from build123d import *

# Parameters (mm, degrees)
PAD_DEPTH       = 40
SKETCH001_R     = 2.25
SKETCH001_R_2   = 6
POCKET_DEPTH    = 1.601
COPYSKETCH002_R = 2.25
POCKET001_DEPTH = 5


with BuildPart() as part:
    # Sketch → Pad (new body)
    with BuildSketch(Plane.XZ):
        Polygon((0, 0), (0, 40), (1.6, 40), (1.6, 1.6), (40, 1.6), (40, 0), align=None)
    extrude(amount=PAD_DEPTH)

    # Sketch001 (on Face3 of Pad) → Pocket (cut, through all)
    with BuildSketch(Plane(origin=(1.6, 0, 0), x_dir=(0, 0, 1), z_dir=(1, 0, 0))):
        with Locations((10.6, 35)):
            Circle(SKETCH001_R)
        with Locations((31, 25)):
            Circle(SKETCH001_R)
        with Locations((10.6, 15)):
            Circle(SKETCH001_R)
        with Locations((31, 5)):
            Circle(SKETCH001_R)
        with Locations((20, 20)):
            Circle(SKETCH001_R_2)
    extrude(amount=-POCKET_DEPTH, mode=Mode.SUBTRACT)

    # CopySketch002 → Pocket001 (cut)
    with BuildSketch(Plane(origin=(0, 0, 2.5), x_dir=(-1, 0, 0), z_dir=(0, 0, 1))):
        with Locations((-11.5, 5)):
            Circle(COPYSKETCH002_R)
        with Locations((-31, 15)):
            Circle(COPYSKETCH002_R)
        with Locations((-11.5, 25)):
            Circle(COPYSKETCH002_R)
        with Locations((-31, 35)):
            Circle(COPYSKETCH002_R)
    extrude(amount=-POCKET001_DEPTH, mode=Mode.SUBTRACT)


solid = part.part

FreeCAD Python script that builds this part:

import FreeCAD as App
import Part
import Sketcher


def add_polygon(sketch, points):
    """Adds a closed chain of lines whose ends are joined by coincident constraints."""
    first, n = sketch.GeometryCount, len(points)
    for a, b in zip(points, points[1:] + points[:1]):
        sketch.addGeometry(Part.LineSegment(App.Vector(*a, 0), App.Vector(*b, 0)), False)
    for i in range(n):
        sketch.addConstraint(Sketcher.Constraint("Coincident", first + i, 2, first + (i + 1) % n, 1))

doc = App.newDocument("Part")
body = doc.addObject("PartDesign::Body", "Body")

# Sketch on XZ plane
sketch1 = body.newObject("Sketcher::SketchObject", "Sketch")
sketch1.AttachmentSupport = (doc.getObject("XZ_Plane"), [""])
sketch1.MapMode = "FlatFace"
add_polygon(sketch1, [(0, 40), (0, 0), (40, 0), (40, 1.6), (1.6, 1.6), (1.6, 40)])  # lines 0-5
sketch1.addConstraint([
    Sketcher.Constraint("Vertical", 0),
    Sketcher.Constraint("Horizontal", 1),
    Sketcher.Constraint("Vertical", 2),
    Sketcher.Constraint("Horizontal", 3),
    Sketcher.Constraint("Vertical", 4),
    Sketcher.Constraint("Horizontal", 5),
    Sketcher.Constraint("Coincident", 0, 2, -1, 1),
    Sketcher.Constraint("Equal", 1, 0),
    Sketcher.Constraint("Equal", 5, 2),
    Sketcher.Constraint("DistanceX", 1, 1, 1, 2, 40.0),
    Sketcher.Constraint("DistanceX", 3, 2, 3, 1, 38.4),
])
pad1 = body.newObject("PartDesign::Pad", "Pad")
pad1.Profile = sketch1
pad1.Length = 40

# Sketch on YZ plane
sketch2 = body.newObject("Sketcher::SketchObject", "Sketch001")
sketch2.AttachmentSupport = (doc.getObject("YZ_Plane"), [""])
sketch2.MapMode = "FlatFace"
sketch2.AttachmentOffset = App.Placement(App.Vector(0, 0, 1.6), App.Rotation())
sketch2.addGeometry([
    Part.Circle(App.Vector(-35, 10.6, 0), App.Vector(0, 0, 1), 2.25),  # 0
    Part.Circle(App.Vector(-25, 31, 0), App.Vector(0, 0, 1), 2.25),  # 1
    Part.Circle(App.Vector(-15, 10.6, 0), App.Vector(0, 0, 1), 2.25),  # 2
    Part.Circle(App.Vector(-5, 31, 0), App.Vector(0, 0, 1), 2.25),  # 3
    Part.Circle(App.Vector(-20, 20, 0), App.Vector(0, 0, 1), 6),  # 4
], False)
sketch2.addConstraint([
    Sketcher.Constraint("Equal", 0, 1),
    Sketcher.Constraint("Equal", 1, 2),
    Sketcher.Constraint("Equal", 2, 3),
    Sketcher.Constraint("Horizontal", 0, 3, 2, 3),
    Sketcher.Constraint("Horizontal", 1, 3, 3, 3),
    Sketcher.Constraint("Diameter", 4, 12.0),
    Sketcher.Constraint("Diameter", 0, 4.5),
    Sketcher.Constraint("DistanceX", 0, 3, -1, 1, 35.0),
    Sketcher.Constraint("DistanceX", 1, 3, -1, 1, 25.0),
    Sketcher.Constraint("DistanceY", -1, 1, 1, 3, 31.0),
    Sketcher.Constraint("DistanceX", 2, 3, -1, 1, 15.0),
    Sketcher.Constraint("DistanceX", 3, 3, -1, 1, 5.0),
    Sketcher.Constraint("DistanceX", 4, 3, -1, 1, 20.0),
    Sketcher.Constraint("DistanceY", -1, 1, 4, 3, 20.0),
    Sketcher.Constraint("DistanceY", -1, 1, 0, 3, 10.6),
])
pocket1 = body.newObject("PartDesign::Pocket", "Pocket")
pocket1.Profile = sketch2
pocket1.Type = "ThroughAll"

# Sketch on XY plane
sketch3 = body.newObject("Sketcher::SketchObject", "Sketch002")
sketch3.AttachmentSupport = (doc.getObject("XY_Plane"), [""])
sketch3.MapMode = "FlatFace"
sketch3.AttachmentOffset = App.Placement(App.Vector(0, 0, 2.5), App.Rotation())
sketch3.addGeometry([
    Part.Circle(App.Vector(11.5, -5, 0), App.Vector(0, 0, 1), 2.25),
    Part.Circle(App.Vector(31, -15, 0), App.Vector(0, 0, 1), 2.25),
    Part.Circle(App.Vector(11.5, -25, 0), App.Vector(0, 0, 1), 2.25),
    Part.Circle(App.Vector(31, -35, 0), App.Vector(0, 0, 1), 2.25),
], False)
sketch3.addConstraint([
    Sketcher.Constraint("Equal", 0, 1),
    Sketcher.Constraint("Equal", 1, 2),
    Sketcher.Constraint("Equal", 2, 3),
    Sketcher.Constraint("Vertical", 0, 3, 2, 3),
    Sketcher.Constraint("Vertical", 1, 3, 3, 3),
    Sketcher.Constraint("Diameter", 0, 4.5),
    Sketcher.Constraint("DistanceY", 0, 3, -1, 1, 5.0),
    Sketcher.Constraint("DistanceX", -1, 1, 1, 3, 31.0),
    Sketcher.Constraint("DistanceY", 1, 3, -1, 1, 15.0),
    Sketcher.Constraint("DistanceY", 2, 3, -1, 1, 25.0),
    Sketcher.Constraint("DistanceY", 3, 3, -1, 1, 35.0),
    Sketcher.Constraint("DistanceX", -1, 1, 0, 3, 11.5),
])
pocket2 = body.newObject("PartDesign::Pocket", "Pocket001")
pocket2.Profile = sketch3
pocket2.Length = 5

doc.recompute()
